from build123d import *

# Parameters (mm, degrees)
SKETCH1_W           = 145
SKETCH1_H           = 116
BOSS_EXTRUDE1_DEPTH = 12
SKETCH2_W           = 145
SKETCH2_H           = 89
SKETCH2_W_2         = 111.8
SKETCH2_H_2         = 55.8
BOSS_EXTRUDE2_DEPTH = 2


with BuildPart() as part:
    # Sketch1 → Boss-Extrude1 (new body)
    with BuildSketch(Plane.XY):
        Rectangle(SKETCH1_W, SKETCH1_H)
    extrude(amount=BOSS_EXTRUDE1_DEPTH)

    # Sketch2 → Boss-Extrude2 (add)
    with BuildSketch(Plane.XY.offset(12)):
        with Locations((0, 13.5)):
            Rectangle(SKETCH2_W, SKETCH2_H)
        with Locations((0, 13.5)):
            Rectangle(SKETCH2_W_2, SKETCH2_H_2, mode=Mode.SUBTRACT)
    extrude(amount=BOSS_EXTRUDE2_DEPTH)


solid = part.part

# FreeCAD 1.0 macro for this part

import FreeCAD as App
import Part
import Sketcher
Q = App.Units.Quantity


def add_polygon(sketch, points):
    """Adds a closed chain of lines whose ends are joined by coincident constraints."""
    first, n = sketch.GeometryCount, len(points)
    for a, b in zip(points, points[1:] + points[:1]):
        sketch.addGeometry(Part.LineSegment(App.Vector(*a, 0), App.Vector(*b, 0)), False)
    for i in range(n):
        sketch.addConstraint(Sketcher.Constraint("Coincident", first + i, 2, first + (i + 1) % n, 1))

doc = App.newDocument("Part")
body = doc.addObject("PartDesign::Body", "Body")

# Sketch on XY plane
sketch1 = doc.addObject("Sketcher::SketchObject", "Sketch")
body.addObject(sketch1)
sketch1.AttachmentSupport = (doc.XY_Plane, [""])
sketch1.MapMode = "FlatFace"
add_polygon(sketch1, [(-72, 58), (-72, -58), (72, -58), (72, 58)])  # lines 0-3
sketch1.addConstraint(Sketcher.Constraint("Vertical", 0))
sketch1.addConstraint(Sketcher.Constraint("Horizontal", 1))
sketch1.addConstraint(Sketcher.Constraint("Vertical", 2))
sketch1.addConstraint(Sketcher.Constraint("Horizontal", 3))
sketch1.addConstraint(Sketcher.Constraint("Symmetric", 0, 2, 2, 2, -1, 1))
sketch1.addConstraint(Sketcher.Constraint("DistanceX", 1, 1, 1, 2, Q("145 mm")))
sketch1.addConstraint(Sketcher.Constraint("DistanceY", 0, 2, 0, 1, Q("116 mm")))
pad1 = doc.addObject("PartDesign::Pad", "Pad")
body.addObject(pad1)
pad1.Profile = sketch1
pad1.Length = 12

# Sketch on XY plane
sketch2 = doc.addObject("Sketcher::SketchObject", "Sketch001")
body.addObject(sketch2)
sketch2.AttachmentSupport = (doc.XY_Plane, [""])
sketch2.MapMode = "FlatFace"
sketch2.AttachmentOffset = App.Placement(App.Vector(0, 0, 12), App.Rotation())
add_polygon(sketch2, [(-72, 58), (-72, -31), (72, -31), (72, 58)])  # lines 0-3
add_polygon(sketch2, [(56, -14), (-56, -14), (-56, 41), (56, 41)])  # lines 4-7
sketch2.addConstraint(Sketcher.Constraint("Vertical", 0))
sketch2.addConstraint(Sketcher.Constraint("Horizontal", 1))
sketch2.addConstraint(Sketcher.Constraint("Vertical", 2))
sketch2.addConstraint(Sketcher.Constraint("Horizontal", 3))
sketch2.addConstraint(Sketcher.Constraint("Horizontal", 4))
sketch2.addConstraint(Sketcher.Constraint("Vertical", 5))
sketch2.addConstraint(Sketcher.Constraint("Horizontal", 6))
sketch2.addConstraint(Sketcher.Constraint("Vertical", 7))
sketch2.addConstraint(Sketcher.Constraint("DistanceX", 1, 1, 1, 2, Q("145 mm")))
sketch2.addConstraint(Sketcher.Constraint("DistanceY", 0, 2, 0, 1, Q("89 mm")))
sketch2.addConstraint(Sketcher.Constraint("DistanceX", 4, 2, 4, 1, Q("111.8 mm")))
sketch2.addConstraint(Sketcher.Constraint("DistanceY", 5, 1, 5, 2, Q("55.8 mm")))
sketch2.addConstraint(Sketcher.Constraint("DistanceY", 0, 2, -1, 1, Q("31 mm")))
sketch2.addConstraint(Sketcher.Constraint("DistanceX", 0, 2, -1, 1, Q("72.5 mm")))
sketch2.addConstraint(Sketcher.Constraint("DistanceX", 4, 2, -1, 1, Q("55.9 mm")))
sketch2.addConstraint(Sketcher.Constraint("DistanceY", 4, 2, -1, 1, Q("14.4 mm")))
pad2 = doc.addObject("PartDesign::Pad", "Pad001")
body.addObject(pad2)
pad2.Profile = sketch2
pad2.Length = 2

doc.recompute()
